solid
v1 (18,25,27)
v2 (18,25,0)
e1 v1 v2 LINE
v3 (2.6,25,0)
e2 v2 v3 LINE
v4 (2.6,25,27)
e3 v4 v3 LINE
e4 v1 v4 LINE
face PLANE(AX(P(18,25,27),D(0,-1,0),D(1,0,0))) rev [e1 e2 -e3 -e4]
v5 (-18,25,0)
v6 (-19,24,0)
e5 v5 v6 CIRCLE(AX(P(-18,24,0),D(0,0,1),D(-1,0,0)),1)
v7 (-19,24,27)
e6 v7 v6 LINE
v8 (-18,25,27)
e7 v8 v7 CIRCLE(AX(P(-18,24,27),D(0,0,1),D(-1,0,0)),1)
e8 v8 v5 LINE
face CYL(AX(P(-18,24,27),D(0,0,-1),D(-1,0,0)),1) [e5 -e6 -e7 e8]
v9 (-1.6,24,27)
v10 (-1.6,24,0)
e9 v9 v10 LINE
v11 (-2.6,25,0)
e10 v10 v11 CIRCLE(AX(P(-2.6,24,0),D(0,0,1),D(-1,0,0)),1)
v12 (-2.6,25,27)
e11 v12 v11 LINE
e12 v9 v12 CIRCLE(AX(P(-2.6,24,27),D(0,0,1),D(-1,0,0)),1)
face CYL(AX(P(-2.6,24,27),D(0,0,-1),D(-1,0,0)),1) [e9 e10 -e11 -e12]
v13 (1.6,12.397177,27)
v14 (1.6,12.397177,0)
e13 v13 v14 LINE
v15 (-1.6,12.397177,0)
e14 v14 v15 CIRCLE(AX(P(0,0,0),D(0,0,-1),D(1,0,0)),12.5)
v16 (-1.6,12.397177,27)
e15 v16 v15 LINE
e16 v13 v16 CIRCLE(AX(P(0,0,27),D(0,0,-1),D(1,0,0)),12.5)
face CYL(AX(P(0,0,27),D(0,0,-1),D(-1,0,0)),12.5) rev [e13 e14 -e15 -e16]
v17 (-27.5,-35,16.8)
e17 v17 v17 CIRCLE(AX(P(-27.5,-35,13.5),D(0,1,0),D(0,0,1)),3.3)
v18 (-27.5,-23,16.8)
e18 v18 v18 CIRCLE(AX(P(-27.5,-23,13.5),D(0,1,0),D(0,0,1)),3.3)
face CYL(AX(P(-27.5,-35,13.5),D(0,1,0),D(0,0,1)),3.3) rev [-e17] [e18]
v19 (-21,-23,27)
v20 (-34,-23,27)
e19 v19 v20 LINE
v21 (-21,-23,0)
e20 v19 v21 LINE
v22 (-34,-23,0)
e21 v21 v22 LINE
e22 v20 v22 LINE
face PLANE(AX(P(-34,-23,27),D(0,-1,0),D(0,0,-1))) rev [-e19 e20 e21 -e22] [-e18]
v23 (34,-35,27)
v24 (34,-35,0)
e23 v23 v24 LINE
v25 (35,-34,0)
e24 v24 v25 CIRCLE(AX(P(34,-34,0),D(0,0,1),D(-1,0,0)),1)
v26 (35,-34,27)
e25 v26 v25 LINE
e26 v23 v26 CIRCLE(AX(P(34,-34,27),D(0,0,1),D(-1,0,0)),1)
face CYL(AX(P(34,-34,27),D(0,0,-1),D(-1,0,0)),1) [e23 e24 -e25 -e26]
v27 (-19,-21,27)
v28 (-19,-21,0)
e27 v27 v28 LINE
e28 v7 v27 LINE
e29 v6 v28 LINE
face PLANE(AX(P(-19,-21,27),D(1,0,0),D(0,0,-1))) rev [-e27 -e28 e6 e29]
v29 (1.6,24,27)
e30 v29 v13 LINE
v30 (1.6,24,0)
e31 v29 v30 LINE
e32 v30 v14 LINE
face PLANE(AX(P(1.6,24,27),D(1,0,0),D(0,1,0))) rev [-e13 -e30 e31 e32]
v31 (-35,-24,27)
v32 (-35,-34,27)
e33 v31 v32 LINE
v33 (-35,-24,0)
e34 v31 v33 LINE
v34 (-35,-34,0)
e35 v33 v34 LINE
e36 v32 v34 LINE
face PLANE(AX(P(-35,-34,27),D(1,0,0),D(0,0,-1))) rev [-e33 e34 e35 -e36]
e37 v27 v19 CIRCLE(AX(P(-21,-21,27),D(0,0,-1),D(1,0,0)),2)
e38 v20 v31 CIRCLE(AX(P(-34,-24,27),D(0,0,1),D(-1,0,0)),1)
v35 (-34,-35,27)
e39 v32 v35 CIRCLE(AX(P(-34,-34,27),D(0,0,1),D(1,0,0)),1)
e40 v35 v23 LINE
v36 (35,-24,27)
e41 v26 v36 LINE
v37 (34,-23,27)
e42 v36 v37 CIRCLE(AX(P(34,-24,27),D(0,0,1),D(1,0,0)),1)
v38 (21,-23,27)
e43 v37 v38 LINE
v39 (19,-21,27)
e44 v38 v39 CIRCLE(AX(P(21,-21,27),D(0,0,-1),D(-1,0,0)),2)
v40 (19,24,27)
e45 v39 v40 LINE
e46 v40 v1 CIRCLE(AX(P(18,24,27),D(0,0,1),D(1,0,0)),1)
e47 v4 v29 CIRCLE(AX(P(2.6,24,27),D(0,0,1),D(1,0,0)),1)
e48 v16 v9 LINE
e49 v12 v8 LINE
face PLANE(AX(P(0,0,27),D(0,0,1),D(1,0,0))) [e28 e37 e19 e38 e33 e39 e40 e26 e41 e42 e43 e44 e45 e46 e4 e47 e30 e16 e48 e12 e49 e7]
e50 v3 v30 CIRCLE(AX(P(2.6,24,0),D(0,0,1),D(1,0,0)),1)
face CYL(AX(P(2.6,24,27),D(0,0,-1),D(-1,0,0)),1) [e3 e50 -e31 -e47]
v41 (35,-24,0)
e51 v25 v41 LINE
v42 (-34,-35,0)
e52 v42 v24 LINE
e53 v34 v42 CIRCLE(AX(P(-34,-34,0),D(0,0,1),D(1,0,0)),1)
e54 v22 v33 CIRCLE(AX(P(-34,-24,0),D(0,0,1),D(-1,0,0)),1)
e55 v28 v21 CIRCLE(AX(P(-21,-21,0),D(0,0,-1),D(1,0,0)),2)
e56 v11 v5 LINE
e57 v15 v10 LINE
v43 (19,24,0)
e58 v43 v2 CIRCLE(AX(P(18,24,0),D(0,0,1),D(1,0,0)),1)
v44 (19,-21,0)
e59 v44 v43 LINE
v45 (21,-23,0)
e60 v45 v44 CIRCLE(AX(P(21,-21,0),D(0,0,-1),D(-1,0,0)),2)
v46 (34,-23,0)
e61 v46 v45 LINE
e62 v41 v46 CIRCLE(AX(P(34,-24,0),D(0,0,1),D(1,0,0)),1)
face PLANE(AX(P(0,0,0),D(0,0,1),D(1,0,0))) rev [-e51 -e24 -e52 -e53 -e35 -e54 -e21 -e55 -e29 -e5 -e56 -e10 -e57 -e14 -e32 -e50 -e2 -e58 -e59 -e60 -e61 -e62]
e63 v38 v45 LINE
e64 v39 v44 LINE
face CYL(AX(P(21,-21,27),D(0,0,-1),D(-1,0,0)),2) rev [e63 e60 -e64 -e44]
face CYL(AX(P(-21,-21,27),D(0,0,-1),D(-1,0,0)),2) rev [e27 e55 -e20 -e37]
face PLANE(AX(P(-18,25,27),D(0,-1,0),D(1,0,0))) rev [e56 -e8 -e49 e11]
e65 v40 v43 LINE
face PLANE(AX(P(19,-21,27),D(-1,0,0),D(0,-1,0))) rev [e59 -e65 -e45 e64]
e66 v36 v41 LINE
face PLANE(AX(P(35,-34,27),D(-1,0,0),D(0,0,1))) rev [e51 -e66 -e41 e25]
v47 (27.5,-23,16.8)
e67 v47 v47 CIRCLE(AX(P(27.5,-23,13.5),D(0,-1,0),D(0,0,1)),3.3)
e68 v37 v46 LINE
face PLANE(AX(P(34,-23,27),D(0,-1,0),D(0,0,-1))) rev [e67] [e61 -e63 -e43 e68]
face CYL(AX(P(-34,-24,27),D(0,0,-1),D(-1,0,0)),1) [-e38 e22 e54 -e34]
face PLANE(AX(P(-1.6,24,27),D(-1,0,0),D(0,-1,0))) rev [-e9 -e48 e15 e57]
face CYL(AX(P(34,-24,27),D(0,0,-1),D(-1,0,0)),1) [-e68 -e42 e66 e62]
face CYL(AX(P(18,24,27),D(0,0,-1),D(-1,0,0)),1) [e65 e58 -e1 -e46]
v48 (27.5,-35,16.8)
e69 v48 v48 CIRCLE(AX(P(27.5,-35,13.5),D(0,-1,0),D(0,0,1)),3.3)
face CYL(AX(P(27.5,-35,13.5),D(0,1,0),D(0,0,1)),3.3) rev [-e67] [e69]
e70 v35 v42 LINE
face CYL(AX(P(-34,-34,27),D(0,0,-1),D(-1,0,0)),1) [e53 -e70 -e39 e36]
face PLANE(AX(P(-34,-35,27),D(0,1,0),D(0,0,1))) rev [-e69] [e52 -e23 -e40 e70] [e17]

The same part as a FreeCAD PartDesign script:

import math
import FreeCAD as App
import Part
import Sketcher

doc = App.newDocument("Part")
body = doc.addObject("PartDesign::Body", "Body")

# Sketch on XY plane
sketch1 = doc.addObject("Sketcher::SketchObject", "Sketch")
body.addObject(sketch1)
sketch1.AttachmentSupport = (doc.XY_Plane, [""])
sketch1.MapMode = "FlatFace"
sketch1.addGeometry(Part.LineSegment(App.Vector(-35, -24, 0), App.Vector(-35, -34, 0)), False)
sketch1.addGeometry(Part.ArcOfCircle(Part.Circle(App.Vector(-34, -34, 0), App.Vector(0, 0, 1), 1), math.radians(-180), math.radians(-90)), False)
sketch1.addGeometry(Part.LineSegment(App.Vector(-34, -35, 0), App.Vector(34, -35, 0)), False)
sketch1.addGeometry(Part.ArcOfCircle(Part.Circle(App.Vector(34, -34, 0), App.Vector(0, 0, 1), 1), math.radians(-90), math.radians(0)), False)
sketch1.addGeometry(Part.LineSegment(App.Vector(35, -34, 0), App.Vector(35, -24, 0)), False)
sketch1.addGeometry(Part.ArcOfCircle(Part.Circle(App.Vector(34, -24, 0), App.Vector(0, 0, 1), 1), math.radians(0), math.radians(90)), False)
sketch1.addGeometry(Part.LineSegment(App.Vector(34, -23, 0), App.Vector(21, -23, 0)), False)
sketch1.addGeometry(Part.ArcOfCircle(Part.Circle(App.Vector(21, -21, 0), App.Vector(0, 0, 1), 2), math.radians(-180), math.radians(-90)), False)
sketch1.addGeometry(Part.LineSegment(App.Vector(19, -21, 0), App.Vector(19, 24, 0)), False)
sketch1.addGeometry(Part.ArcOfCircle(Part.Circle(App.Vector(18, 24, 0), App.Vector(0, 0, 1), 1), math.radians(0), math.radians(90)), False)
sketch1.addGeometry(Part.LineSegment(App.Vector(18, 25, 0), App.Vector(2.6, 25, 0)), False)
sketch1.addGeometry(Part.ArcOfCircle(Part.Circle(App.Vector(2.6, 24, 0), App.Vector(0, 0, 1), 1), math.radians(90), math.radians(180)), False)
sketch1.addGeometry(Part.LineSegment(App.Vector(1.6, 24, 0), App.Vector(1.6, 12.4, 0)), False)
sketch1.addGeometry(Part.ArcOfCircle(Part.Circle(App.Vector(0, 0, 0), App.Vector(0, 0, 1), 12.5), math.radians(97), math.radians(443)), False)
sketch1.addGeometry(Part.LineSegment(App.Vector(-1.6, 12.4, 0), App.Vector(-1.6, 24, 0)), False)
sketch1.addGeometry(Part.ArcOfCircle(Part.Circle(App.Vector(-2.6, 24, 0), App.Vector(0, 0, 1), 1), math.radians(0), math.radians(90)), False)
sketch1.addGeometry(Part.LineSegment(App.Vector(-2.6, 25, 0), App.Vector(-18, 25, 0)), False)
sketch1.addGeometry(Part.ArcOfCircle(Part.Circle(App.Vector(-18, 24, 0), App.Vector(0, 0, 1), 1), math.radians(90), math.radians(180)), False)
sketch1.addGeometry(Part.LineSegment(App.Vector(-19, 24, 0), App.Vector(-19, -21, 0)), False)
sketch1.addGeometry(Part.ArcOfCircle(Part.Circle(App.Vector(-21, -21, 0), App.Vector(0, 0, 1), 2), math.radians(-90), math.radians(0)), False)
sketch1.addGeometry(Part.LineSegment(App.Vector(-21, -23, 0), App.Vector(-34, -23, 0)), False)
sketch1.addGeometry(Part.ArcOfCircle(Part.Circle(App.Vector(-34, -24, 0), App.Vector(0, 0, 1), 1), math.radians(90), math.radians(180)), False)
sketch1.addConstraint(Sketcher.Constraint("Tangent", 0, 2, 1, 1))
sketch1.addConstraint(Sketcher.Constraint("Tangent", 1, 2, 2, 1))
sketch1.addConstraint(Sketcher.Constraint("Tangent", 2, 2, 3, 1))
sketch1.addConstraint(Sketcher.Constraint("Tangent", 3, 2, 4, 1))
sketch1.addConstraint(Sketcher.Constraint("Tangent", 4, 2, 5, 1))
sketch1.addConstraint(Sketcher.Constraint("Tangent", 5, 2, 6, 1))
sketch1.addConstraint(Sketcher.Constraint("Tangent", 6, 2, 7, 2))
sketch1.addConstraint(Sketcher.Constraint("Tangent", 7, 1, 8, 1))
sketch1.addConstraint(Sketcher.Constraint("Tangent", 8, 2, 9, 1))
sketch1.addConstraint(Sketcher.Constraint("Tangent", 9, 2, 10, 1))
sketch1.addConstraint(Sketcher.Constraint("Tangent", 10, 2, 11, 1))
sketch1.addConstraint(Sketcher.Constraint("Tangent", 11, 2, 12, 1))
sketch1.addConstraint(Sketcher.Constraint("Coincident", 12, 2, 13, 2))
sketch1.addConstraint(Sketcher.Constraint("Coincident", 13, 1, 14, 1))
sketch1.addConstraint(Sketcher.Constraint("Tangent", 14, 2, 15, 1))
sketch1.addConstraint(Sketcher.Constraint("Tangent", 15, 2, 16, 1))
sketch1.addConstraint(Sketcher.Constraint("Tangent", 16, 2, 17, 1))
sketch1.addConstraint(Sketcher.Constraint("Tangent", 17, 2, 18, 1))
sketch1.addConstraint(Sketcher.Constraint("Tangent", 18, 2, 19, 2))
sketch1.addConstraint(Sketcher.Constraint("Tangent", 19, 1, 20, 1))
sketch1.addConstraint(Sketcher.Constraint("Tangent", 20, 2, 21, 1))
sketch1.addConstraint(Sketcher.Constraint("Tangent", 21, 2, 0, 1))
sketch1.addConstraint(Sketcher.Constraint("Vertical", 0))
sketch1.addConstraint(Sketcher.Constraint("Horizontal", 2))
sketch1.addConstraint(Sketcher.Constraint("Vertical", 4))
sketch1.addConstraint(Sketcher.Constraint("Horizontal", 6))
sketch1.addConstraint(Sketcher.Constraint("Vertical", 8))
sketch1.addConstraint(Sketcher.Constraint("Horizontal", 10))
sketch1.addConstraint(Sketcher.Constraint("Vertical", 12))
sketch1.addConstraint(Sketcher.Constraint("Vertical", 14))
sketch1.addConstraint(Sketcher.Constraint("Horizontal", 16))
sketch1.addConstraint(Sketcher.Constraint("Vertical", 18))
sketch1.addConstraint(Sketcher.Constraint("Horizontal", 20))
sketch1.addConstraint(Sketcher.Constraint("Coincident", 13, 3, -1, 1))
sketch1.addConstraint(Sketcher.Constraint("Equal", 1, 3))
sketch1.addConstraint(Sketcher.Constraint("Equal", 3, 5))
sketch1.addConstraint(Sketcher.Constraint("Equal", 5, 9))
sketch1.addConstraint(Sketcher.Constraint("Equal", 9, 11))
sketch1.addConstraint(Sketcher.Constraint("Equal", 11, 15))
sketch1.addConstraint(Sketcher.Constraint("Equal", 15, 17))
sketch1.addConstraint(Sketcher.Constraint("Equal", 7, 19))
sketch1.addConstraint(Sketcher.Constraint("Equal", 17, 21))
sketch1.addConstraint(Sketcher.Constraint("Symmetric", 11, 3, 15, 3, -2))
sketch1.addConstraint(Sketcher.Constraint("Symmetric", 7, 3, 19, 3, -2))
sketch1.addConstraint(Sketcher.Constraint("Equal", 6, 20))
sketch1.addConstraint(Sketcher.Constraint("Radius", 1, 1.0))
sketch1.addConstraint(Sketcher.Constraint("Radius", 7, 2.0))
sketch1.addConstraint(Sketcher.Constraint("Radius", 13, 12.5))
sketch1.addConstraint(Sketcher.Constraint("DistanceX", 2, 1, 2, 2, 68.0))
sketch1.addConstraint(Sketcher.Constraint("DistanceX", 6, 2, 6, 1, 13.0))
sketch1.addConstraint(Sketcher.Constraint("DistanceY", 0, 2, 0, 1, 10.0))
sketch1.addConstraint(Sketcher.Constraint("DistanceY", 8, 1, 8, 2, 45.0))
sketch1.addConstraint(Sketcher.Constraint("DistanceX", 10, 2, 10, 1, 15.4))
sketch1.addConstraint(Sketcher.Constraint("DistanceY", 1, 3, -1, 1, 34.0))
pad1 = doc.addObject("PartDesign::Pad", "Pad")
body.addObject(pad1)
pad1.Profile = sketch1
pad1.Length = 27

# Sketch on XZ plane
sketch2 = doc.addObject("Sketcher::SketchObject", "Sketch001")
body.addObject(sketch2)
sketch2.AttachmentSupport = (doc.XZ_Plane, [""])
sketch2.MapMode = "FlatFace"
sketch2.AttachmentOffset = App.Placement(App.Vector(0, 0, 23), App.Rotation())
sketch2.addGeometry(Part.Circle(App.Vector(-27.5, 13.5, 0), App.Vector(0, 0, 1), 3.3), False)
sketch2.addConstraint(Sketcher.Constraint("Diameter", 0, 6.6))
sketch2.addConstraint(Sketcher.Constraint("DistanceX", 0, 3, -1, 1, 27.5))
sketch2.addConstraint(Sketcher.Constraint("DistanceY", -1, 1, 0, 3, 13.5))
pocket1 = doc.addObject("PartDesign::Pocket", "Pocket")
body.addObject(pocket1)
pocket1.Profile = sketch2
pocket1.Type = "ThroughAll"
pocket1.Reversed = True
doc.recompute()

mirrored = doc.addObject("PartDesign::Mirrored", "Mirrored")
body.addObject(mirrored)
mirrored.Originals = [pocket1]
mirrored.MirrorPlane = (doc.YZ_Plane, [""])
body.Tip = mirrored

doc.recompute()
